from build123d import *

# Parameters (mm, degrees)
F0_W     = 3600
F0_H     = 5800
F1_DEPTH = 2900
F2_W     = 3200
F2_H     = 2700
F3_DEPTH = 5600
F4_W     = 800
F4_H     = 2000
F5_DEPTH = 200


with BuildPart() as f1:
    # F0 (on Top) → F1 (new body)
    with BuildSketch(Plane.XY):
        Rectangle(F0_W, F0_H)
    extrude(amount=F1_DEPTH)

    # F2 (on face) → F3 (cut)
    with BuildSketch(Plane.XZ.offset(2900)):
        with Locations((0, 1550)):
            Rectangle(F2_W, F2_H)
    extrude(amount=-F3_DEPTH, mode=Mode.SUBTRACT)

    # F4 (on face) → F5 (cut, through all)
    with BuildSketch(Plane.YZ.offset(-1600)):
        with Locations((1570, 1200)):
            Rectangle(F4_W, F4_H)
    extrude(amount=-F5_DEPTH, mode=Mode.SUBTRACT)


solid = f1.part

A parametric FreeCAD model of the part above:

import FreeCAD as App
import Part
import Sketcher
from FreeCAD import Vector

doc = App.newDocument("Part")
body = doc.addObject("PartDesign::Body", "Body")

sketch1 = body.newObject("Sketcher::SketchObject", "Sketch")
sketch1.AttachmentSupport = (doc.getObject("XY_Plane"), [""])
sketch1.MapMode = "FlatFace"
sketch1.addGeometry(Part.LineSegment(Vector(-1800, 2900, 0), Vector(-1800, -2900, 0)), False)
sketch1.addGeometry(Part.LineSegment(Vector(-1800, -2900, 0), Vector(1800, -2900, 0)), False)
sketch1.addGeometry(Part.LineSegment(Vector(1800, -2900, 0), Vector(1800, 2900, 0)), False)
sketch1.addGeometry(Part.LineSegment(Vector(1800, 2900, 0), Vector(-1800, 2900, 0)), False)
sketch1.addConstraint(Sketcher.Constraint("Coincident", 0, 2, 1, 1))
sketch1.addConstraint(Sketcher.Constraint("Coincident", 1, 2, 2, 1))
sketch1.addConstraint(Sketcher.Constraint("Coincident", 2, 2, 3, 1))
sketch1.addConstraint(Sketcher.Constraint("Coincident", 3, 2, 0, 1))
sketch1.addConstraint(Sketcher.Constraint("Vertical", 0))
sketch1.addConstraint(Sketcher.Constraint("Horizontal", 1))
sketch1.addConstraint(Sketcher.Constraint("Vertical", 2))
sketch1.addConstraint(Sketcher.Constraint("Horizontal", 3))
sketch1.addConstraint(Sketcher.Constraint("Symmetric", 0, 2, 2, 2, -1, 1))
sketch1.addConstraint(Sketcher.Constraint("DistanceX", 1, 1, 1, 2, 3600.0))
sketch1.addConstraint(Sketcher.Constraint("DistanceY", 0, 2, 0, 1, 5800.0))
pad1 = body.newObject("PartDesign::Pad", "Pad")
pad1.Profile = sketch1
pad1.Length = 2900

sketch2 = body.newObject("Sketcher::SketchObject", "Sketch001")
sketch2.AttachmentSupport = (doc.getObject("XZ_Plane"), [""])
sketch2.MapMode = "FlatFace"
sketch2.AttachmentOffset = App.Placement(Vector(0, 0, 2900), App.Rotation())
sketch2.addGeometry(Part.LineSegment(Vector(-1600, 2900, 0), Vector(-1600, 200, 0)), False)
sketch2.addGeometry(Part.LineSegment(Vector(-1600, 200, 0), Vector(1600, 200, 0)), False)
sketch2.addGeometry(Part.LineSegment(Vector(1600, 200, 0), Vector(1600, 2900, 0)), False)
sketch2.addGeometry(Part.LineSegment(Vector(1600, 2900, 0), Vector(-1600, 2900, 0)), False)
sketch2.addConstraint(Sketcher.Constraint("Coincident", 0, 2, 1, 1))
sketch2.addConstraint(Sketcher.Constraint("Coincident", 1, 2, 2, 1))
sketch2.addConstraint(Sketcher.Constraint("Coincident", 2, 2, 3, 1))
sketch2.addConstraint(Sketcher.Constraint("Coincident", 3, 2, 0, 1))
sketch2.addConstraint(Sketcher.Constraint("Vertical", 0))
sketch2.addConstraint(Sketcher.Constraint("Horizontal", 1))
sketch2.addConstraint(Sketcher.Constraint("Vertical", 2))
sketch2.addConstraint(Sketcher.Constraint("Horizontal", 3))
sketch2.addConstraint(Sketcher.Constraint("DistanceX", 1, 1, 1, 2, 3200.0))
sketch2.addConstraint(Sketcher.Constraint("DistanceY", 0, 2, 0, 1, 2700.0))
sketch2.addConstraint(Sketcher.Constraint("DistanceX", 0, 2, -1, 1, 1600.0))
sketch2.addConstraint(Sketcher.Constraint("DistanceY", -1, 1, 0, 2, 200.0))
pocket1 = body.newObject("PartDesign::Pocket", "Pocket")
pocket1.Profile = sketch2
pocket1.Length = 5600

sketch3 = body.newObject("Sketcher::SketchObject", "Sketch002")
sketch3.AttachmentSupport = (doc.getObject("YZ_Plane"), [""])
sketch3.MapMode = "FlatFace"
sketch3.AttachmentOffset = App.Placement(Vector(0, 0, -1600), App.Rotation())
sketch3.addGeometry(Part.LineSegment(Vector(1170, 2200, 0), Vector(1170, 200, 0)), False)
sketch3.addGeometry(Part.LineSegment(Vector(1170, 200, 0), Vector(1970, 200, 0)), False)
sketch3.addGeometry(Part.LineSegment(Vector(1970, 200, 0), Vector(1970, 2200, 0)), False)
sketch3.addGeometry(Part.LineSegment(Vector(1970, 2200, 0), Vector(1170, 2200, 0)), False)
sketch3.addConstraint(Sketcher.Constraint("Coincident", 0, 2, 1, 1))
sketch3.addConstraint(Sketcher.Constraint("Coincident", 1, 2, 2, 1))
sketch3.addConstraint(Sketcher.Constraint("Coincident", 2, 2, 3, 1))
sketch3.addConstraint(Sketcher.Constraint("Coincident", 3, 2, 0, 1))
sketch3.addConstraint(Sketcher.Constraint("Vertical", 0))
sketch3.addConstraint(Sketcher.Constraint("Horizontal", 1))
sketch3.addConstraint(Sketcher.Constraint("Vertical", 2))
sketch3.addConstraint(Sketcher.Constraint("Horizontal", 3))
sketch3.addConstraint(Sketcher.Constraint("DistanceX", 1, 1, 1, 2, 800.0))
sketch3.addConstraint(Sketcher.Constraint("DistanceY", 0, 2, 0, 1, 2000.0))
sketch3.addConstraint(Sketcher.Constraint("DistanceX", -1, 1, 0, 2, 1170.0))
sketch3.addConstraint(Sketcher.Constraint("DistanceY", -1, 1, 0, 2, 200.0))
pocket2 = body.newObject("PartDesign::Pocket", "Pocket001")
pocket2.Profile = sketch3
pocket2.Type = "ThroughAll"

doc.recompute()
